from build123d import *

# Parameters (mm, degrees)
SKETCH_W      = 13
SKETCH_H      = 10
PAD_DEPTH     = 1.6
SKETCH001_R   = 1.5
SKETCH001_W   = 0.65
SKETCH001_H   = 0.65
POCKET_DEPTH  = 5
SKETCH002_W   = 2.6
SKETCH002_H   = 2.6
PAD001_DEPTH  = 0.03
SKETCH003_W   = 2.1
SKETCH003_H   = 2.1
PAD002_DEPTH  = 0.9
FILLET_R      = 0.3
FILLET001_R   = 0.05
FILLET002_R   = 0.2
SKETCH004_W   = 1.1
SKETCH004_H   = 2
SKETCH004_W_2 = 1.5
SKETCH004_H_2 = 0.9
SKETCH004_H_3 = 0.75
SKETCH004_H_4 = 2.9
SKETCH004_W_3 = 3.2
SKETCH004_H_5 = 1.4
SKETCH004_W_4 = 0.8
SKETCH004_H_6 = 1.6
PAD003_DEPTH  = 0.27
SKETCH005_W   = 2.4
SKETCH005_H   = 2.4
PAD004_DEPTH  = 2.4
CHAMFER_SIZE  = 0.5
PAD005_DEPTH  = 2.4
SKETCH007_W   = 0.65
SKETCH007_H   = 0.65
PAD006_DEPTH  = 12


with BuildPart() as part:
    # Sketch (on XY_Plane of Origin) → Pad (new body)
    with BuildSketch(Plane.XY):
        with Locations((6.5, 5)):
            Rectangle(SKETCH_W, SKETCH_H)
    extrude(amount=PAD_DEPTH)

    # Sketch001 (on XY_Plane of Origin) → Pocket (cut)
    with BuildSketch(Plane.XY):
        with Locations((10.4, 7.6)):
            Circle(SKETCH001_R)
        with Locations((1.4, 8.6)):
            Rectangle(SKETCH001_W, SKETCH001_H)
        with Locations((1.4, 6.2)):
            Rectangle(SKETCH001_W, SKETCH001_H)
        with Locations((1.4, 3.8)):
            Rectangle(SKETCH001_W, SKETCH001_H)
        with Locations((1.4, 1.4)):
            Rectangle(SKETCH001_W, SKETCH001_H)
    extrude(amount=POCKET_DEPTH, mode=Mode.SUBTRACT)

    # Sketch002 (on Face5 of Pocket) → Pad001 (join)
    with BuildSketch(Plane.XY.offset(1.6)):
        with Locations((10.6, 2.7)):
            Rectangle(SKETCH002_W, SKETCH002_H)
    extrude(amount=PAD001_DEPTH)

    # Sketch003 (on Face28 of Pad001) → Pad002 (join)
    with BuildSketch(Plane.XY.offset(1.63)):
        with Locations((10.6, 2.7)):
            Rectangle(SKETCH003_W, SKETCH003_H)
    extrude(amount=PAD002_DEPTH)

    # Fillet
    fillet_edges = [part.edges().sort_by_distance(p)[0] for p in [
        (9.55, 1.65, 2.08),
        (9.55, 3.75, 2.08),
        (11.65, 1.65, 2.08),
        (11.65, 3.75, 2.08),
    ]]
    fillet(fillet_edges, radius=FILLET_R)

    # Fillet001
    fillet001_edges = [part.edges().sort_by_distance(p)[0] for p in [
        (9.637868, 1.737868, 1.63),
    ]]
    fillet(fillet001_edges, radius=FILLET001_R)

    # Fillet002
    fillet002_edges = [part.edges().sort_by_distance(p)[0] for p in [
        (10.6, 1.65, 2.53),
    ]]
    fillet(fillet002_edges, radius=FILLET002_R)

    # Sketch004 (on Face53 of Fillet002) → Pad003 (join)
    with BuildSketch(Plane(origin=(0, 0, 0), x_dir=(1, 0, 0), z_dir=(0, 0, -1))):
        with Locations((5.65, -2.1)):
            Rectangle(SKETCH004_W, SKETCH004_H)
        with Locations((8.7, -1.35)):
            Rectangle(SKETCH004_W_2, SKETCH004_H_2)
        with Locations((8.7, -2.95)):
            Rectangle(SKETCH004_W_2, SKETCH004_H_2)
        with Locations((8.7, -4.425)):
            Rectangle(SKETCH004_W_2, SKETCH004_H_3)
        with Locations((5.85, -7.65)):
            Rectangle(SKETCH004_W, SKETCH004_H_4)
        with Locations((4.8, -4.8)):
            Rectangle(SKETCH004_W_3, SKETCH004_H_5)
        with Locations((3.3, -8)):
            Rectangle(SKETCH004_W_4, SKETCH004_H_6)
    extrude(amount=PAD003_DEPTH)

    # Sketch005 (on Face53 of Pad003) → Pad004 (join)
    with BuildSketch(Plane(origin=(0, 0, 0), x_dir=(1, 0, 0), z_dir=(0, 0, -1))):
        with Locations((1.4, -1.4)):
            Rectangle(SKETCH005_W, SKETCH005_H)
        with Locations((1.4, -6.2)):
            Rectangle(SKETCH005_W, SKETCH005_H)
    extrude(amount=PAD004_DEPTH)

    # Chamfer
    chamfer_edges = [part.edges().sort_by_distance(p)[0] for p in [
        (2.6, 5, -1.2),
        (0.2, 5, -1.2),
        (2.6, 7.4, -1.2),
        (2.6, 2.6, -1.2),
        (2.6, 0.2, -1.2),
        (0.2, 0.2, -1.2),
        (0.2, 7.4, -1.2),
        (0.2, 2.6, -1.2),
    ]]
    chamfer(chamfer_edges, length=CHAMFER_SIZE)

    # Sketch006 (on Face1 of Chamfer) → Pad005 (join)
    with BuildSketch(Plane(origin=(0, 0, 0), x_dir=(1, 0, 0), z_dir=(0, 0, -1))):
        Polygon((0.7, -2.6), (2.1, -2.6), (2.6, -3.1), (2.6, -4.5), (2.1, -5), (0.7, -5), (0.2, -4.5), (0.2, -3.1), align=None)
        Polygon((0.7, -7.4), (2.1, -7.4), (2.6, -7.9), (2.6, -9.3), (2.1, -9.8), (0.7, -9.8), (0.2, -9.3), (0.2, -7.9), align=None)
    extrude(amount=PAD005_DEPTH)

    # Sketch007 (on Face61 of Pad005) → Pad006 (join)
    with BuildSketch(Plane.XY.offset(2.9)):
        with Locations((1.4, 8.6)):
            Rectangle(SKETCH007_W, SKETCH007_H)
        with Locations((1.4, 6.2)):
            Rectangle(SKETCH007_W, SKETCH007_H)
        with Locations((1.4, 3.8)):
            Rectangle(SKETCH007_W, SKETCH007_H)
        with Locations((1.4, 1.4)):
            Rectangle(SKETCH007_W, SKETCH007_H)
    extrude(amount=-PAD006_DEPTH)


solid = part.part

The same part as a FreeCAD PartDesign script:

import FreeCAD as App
import Part
import Sketcher


def edges_at(feature, points):
    """Names of the edges that pass closest to the given points."""
    edges = feature.Shape.Edges
    near = lambda p: min(range(len(edges)), key=lambda i: edges[i].distToShape(Part.Vertex(*p))[0])
    return sorted({f"Edge{near(p) + 1}" for p in points})

doc = App.newDocument("Part")
body = doc.addObject("PartDesign::Body", "Body")

sketch1 = body.newObject("Sketcher::SketchObject", "Sketch")
sketch1.AttachmentSupport = (doc.getObject("XY_Plane"), [""])
sketch1.MapMode = "FlatFace"
sketch1.addGeometry([
    Part.LineSegment(App.Vector(0, 10, 0), App.Vector(0, 0, 0)),
    Part.LineSegment(App.Vector(0, 0, 0), App.Vector(13, 0, 0)),
    Part.LineSegment(App.Vector(13, 0, 0), App.Vector(13, 10, 0)),
    Part.LineSegment(App.Vector(13, 10, 0), App.Vector(0, 10, 0)),
], False)
sketch1.addConstraint([
    Sketcher.Constraint("Coincident", 0, 2, 1, 1),
    Sketcher.Constraint("Coincident", 1, 2, 2, 1),
    Sketcher.Constraint("Coincident", 2, 2, 3, 1),
    Sketcher.Constraint("Coincident", 3, 2, 0, 1),
    Sketcher.Constraint("Vertical", 0),
    Sketcher.Constraint("Horizontal", 1),
    Sketcher.Constraint("Vertical", 2),
    Sketcher.Constraint("Horizontal", 3),
    Sketcher.Constraint("Coincident", 0, 2, -1, 1),
    Sketcher.Constraint("DistanceX", 1, 1, 1, 2, 13.0),
    Sketcher.Constraint("DistanceY", 0, 2, 0, 1, 10.0),
])
pad1 = body.newObject("PartDesign::Pad", "Pad")
pad1.Profile = sketch1
pad1.Length = 1.6

sketch2 = body.newObject("Sketcher::SketchObject", "Sketch001")
sketch2.AttachmentSupport = (doc.getObject("XY_Plane"), [""])
sketch2.MapMode = "FlatFace"
sketch2.addGeometry([
    Part.Circle(App.Vector(10.4, 7.6, 0), App.Vector(0, 0, 1), 1.5),
    Part.LineSegment(App.Vector(1.1, 8.9, 0), App.Vector(1.1, 8.3, 0)),
    Part.LineSegment(App.Vector(1.1, 8.3, 0), App.Vector(1.7, 8.3, 0)),
    Part.LineSegment(App.Vector(1.7, 8.3, 0), App.Vector(1.7, 8.9, 0)),
    Part.LineSegment(App.Vector(1.7, 8.9, 0), App.Vector(1.1, 8.9, 0)),
    Part.LineSegment(App.Vector(1.1, 6.5, 0), App.Vector(1.1, 5.9, 0)),
    Part.LineSegment(App.Vector(1.1, 5.9, 0), App.Vector(1.7, 5.9, 0)),
    Part.LineSegment(App.Vector(1.7, 5.9, 0), App.Vector(1.7, 6.5, 0)),
    Part.LineSegment(App.Vector(1.7, 6.5, 0), App.Vector(1.1, 6.5, 0)),
    Part.LineSegment(App.Vector(1.1, 4.1, 0), App.Vector(1.1, 3.5, 0)),
    Part.LineSegment(App.Vector(1.1, 3.5, 0), App.Vector(1.7, 3.5, 0)),
    Part.LineSegment(App.Vector(1.7, 3.5, 0), App.Vector(1.7, 4.1, 0)),
    Part.LineSegment(App.Vector(1.7, 4.1, 0), App.Vector(1.1, 4.1, 0)),
    Part.LineSegment(App.Vector(1.1, 1.7, 0), App.Vector(1.1, 1.1, 0)),
    Part.LineSegment(App.Vector(1.1, 1.1, 0), App.Vector(1.7, 1.1, 0)),
    Part.LineSegment(App.Vector(1.7, 1.1, 0), App.Vector(1.7, 1.7, 0)),
    Part.LineSegment(App.Vector(1.7, 1.7, 0), App.Vector(1.1, 1.7, 0)),
], False)
sketch2.addConstraint([
    Sketcher.Constraint("Coincident", 1, 2, 2, 1),
    Sketcher.Constraint("Coincident", 2, 2, 3, 1),
    Sketcher.Constraint("Coincident", 3, 2, 4, 1),
    Sketcher.Constraint("Coincident", 4, 2, 1, 1),
    Sketcher.Constraint("Coincident", 5, 2, 6, 1),
    Sketcher.Constraint("Coincident", 6, 2, 7, 1),
    Sketcher.Constraint("Coincident", 7, 2, 8, 1),
    Sketcher.Constraint("Coincident", 8, 2, 5, 1),
    Sketcher.Constraint("Coincident", 9, 2, 10, 1),
    Sketcher.Constraint("Coincident", 10, 2, 11, 1),
    Sketcher.Constraint("Coincident", 11, 2, 12, 1),
    Sketcher.Constraint("Coincident", 12, 2, 9, 1),
    Sketcher.Constraint("Coincident", 13, 2, 14, 1),
    Sketcher.Constraint("Coincident", 14, 2, 15, 1),
    Sketcher.Constraint("Coincident", 15, 2, 16, 1),
    Sketcher.Constraint("Coincident", 16, 2, 13, 1),
    Sketcher.Constraint("Vertical", 1),
    Sketcher.Constraint("Horizontal", 2),
    Sketcher.Constraint("Vertical", 3),
    Sketcher.Constraint("Horizontal", 4),
    Sketcher.Constraint("Vertical", 5),
    Sketcher.Constraint("Horizontal", 6),
    Sketcher.Constraint("Vertical", 7),
    Sketcher.Constraint("Horizontal", 8),
    Sketcher.Constraint("Vertical", 9),
    Sketcher.Constraint("Horizontal", 10),
    Sketcher.Constraint("Vertical", 11),
    Sketcher.Constraint("Horizontal", 12),
    Sketcher.Constraint("Vertical", 13),
    Sketcher.Constraint("Horizontal", 14),
    Sketcher.Constraint("Vertical", 15),
    Sketcher.Constraint("Horizontal", 16),
    Sketcher.Constraint("Vertical", 4, 2, 5, 2),
    Sketcher.Constraint("Vertical", 3, 2, 6, 2),
    Sketcher.Constraint("Vertical", 8, 2, 9, 2),
    Sketcher.Constraint("Vertical", 7, 2, 10, 2),
    Sketcher.Constraint("Vertical", 12, 2, 13, 2),
    Sketcher.Constraint("Vertical", 11, 2, 14, 2),
    Sketcher.Constraint("Equal", 16, 1),
    Sketcher.Constraint("Equal", 3, 5),
    Sketcher.Constraint("Equal", 7, 9),
    Sketcher.Constraint("Equal", 11, 13),
    Sketcher.Constraint("Diameter", 0, 3.0),
    Sketcher.Constraint("DistanceX", 2, 1, 2, 2, 0.65),
    Sketcher.Constraint("DistanceX", -1, 1, 0, 3, 10.4),
    Sketcher.Constraint("DistanceY", -1, 1, 0, 3, 7.6),
    Sketcher.Constraint("DistanceY", 5, 2, 1, 2, 2.4),
    Sketcher.Constraint("DistanceY", 9, 2, 5, 2, 2.4),
    Sketcher.Constraint("DistanceY", 13, 2, 9, 2, 2.4),
    Sketcher.Constraint("DistanceX", -1, 1, 1, 2, 1.075),
    Sketcher.Constraint("DistanceY", -1, 1, 1, 2, 8.275),
])
pocket1 = body.newObject("PartDesign::Pocket", "Pocket")
pocket1.Profile = sketch2
pocket1.Length = 5
pocket1.Reversed = True

sketch3 = body.newObject("Sketcher::SketchObject", "Sketch002")
sketch3.AttachmentSupport = (doc.getObject("XY_Plane"), [""])
sketch3.MapMode = "FlatFace"
sketch3.AttachmentOffset = App.Placement(App.Vector(0, 0, 1.6), App.Rotation())
sketch3.addGeometry([
    Part.LineSegment(App.Vector(9.3, 4, 0), App.Vector(9.3, 1.4, 0)),
    Part.LineSegment(App.Vector(9.3, 1.4, 0), App.Vector(11.9, 1.4, 0)),
    Part.LineSegment(App.Vector(11.9, 1.4, 0), App.Vector(11.9, 4, 0)),
    Part.LineSegment(App.Vector(11.9, 4, 0), App.Vector(9.3, 4, 0)),
], False)
sketch3.addConstraint([
    Sketcher.Constraint("Coincident", 0, 2, 1, 1),
    Sketcher.Constraint("Coincident", 1, 2, 2, 1),
    Sketcher.Constraint("Coincident", 2, 2, 3, 1),
    Sketcher.Constraint("Coincident", 3, 2, 0, 1),
    Sketcher.Constraint("Vertical", 0),
    Sketcher.Constraint("Horizontal", 1),
    Sketcher.Constraint("Vertical", 2),
    Sketcher.Constraint("Horizontal", 3),
    Sketcher.Constraint("Equal", 3, 0),
    Sketcher.Constraint("DistanceX", 1, 1, 1, 2, 2.6),
    Sketcher.Constraint("DistanceY", -1, 1, 2, 2, 4.0),
    Sketcher.Constraint("DistanceX", -1, 1, 0, 2, 9.3),
])
pad2 = body.newObject("PartDesign::Pad", "Pad001")
pad2.Profile = sketch3
pad2.Length = 0.03

sketch4 = body.newObject("Sketcher::SketchObject", "Sketch003")
sketch4.AttachmentSupport = (doc.getObject("XY_Plane"), [""])
sketch4.MapMode = "FlatFace"
sketch4.AttachmentOffset = App.Placement(App.Vector(0, 0, 1.63), App.Rotation())
sketch4.addGeometry([
    Part.LineSegment(App.Vector(9.6, 3.8, 0), App.Vector(9.6, 1.6, 0)),
    Part.LineSegment(App.Vector(9.6, 1.6, 0), App.Vector(11.7, 1.6, 0)),
    Part.LineSegment(App.Vector(11.7, 1.6, 0), App.Vector(11.7, 3.8, 0)),
    Part.LineSegment(App.Vector(11.7, 3.8, 0), App.Vector(9.6, 3.8, 0)),
], False)
sketch4.addConstraint([
    Sketcher.Constraint("Coincident", 0, 2, 1, 1),
    Sketcher.Constraint("Coincident", 1, 2, 2, 1),
    Sketcher.Constraint("Coincident", 2, 2, 3, 1),
    Sketcher.Constraint("Coincident", 3, 2, 0, 1),
    Sketcher.Constraint("Vertical", 0),
    Sketcher.Constraint("Horizontal", 1),
    Sketcher.Constraint("Vertical", 2),
    Sketcher.Constraint("Horizontal", 3),
    Sketcher.Constraint("Equal", 3, 0),
    Sketcher.Constraint("DistanceX", 1, 1, 1, 2, 2.1),
    Sketcher.Constraint("DistanceX", -1, 1, 0, 2, 9.55),
    Sketcher.Constraint("DistanceY", -1, 1, 0, 2, 1.65),
])
pad3 = body.newObject("PartDesign::Pad", "Pad002")
pad3.Profile = sketch4
pad3.Length = 0.9
doc.recompute()

fillet = body.newObject("PartDesign::Fillet", "Fillet")
fillet.Base = (pad3, edges_at(pad3, [
    (9.55, 1.65, 2.08),
    (9.55, 3.75, 2.08),
    (11.65, 1.65, 2.08),
    (11.65, 3.75, 2.08),
]))
fillet.Radius = 0.3
doc.recompute()

fillet2 = body.newObject("PartDesign::Fillet", "Fillet001")
fillet2.Base = (fillet, edges_at(fillet, [(9.638, 1.738, 1.63)]))
fillet2.Radius = 0.05
doc.recompute()

fillet3 = body.newObject("PartDesign::Fillet", "Fillet002")
fillet3.Base = (fillet2, edges_at(fillet2, [(10.6, 1.65, 2.53)]))
fillet3.Radius = 0.2

sketch5 = body.newObject("Sketcher::SketchObject", "Sketch004")
sketch5.AttachmentSupport = (doc.getObject("XY_Plane"), [""])
sketch5.MapMode = "FlatFace"
sketch5.addGeometry([
    Part.LineSegment(App.Vector(5.1, 1.1, 0), App.Vector(5.1, 3.1, 0)),
    Part.LineSegment(App.Vector(5.1, 3.1, 0), App.Vector(6.2, 3.1, 0)),
    Part.LineSegment(App.Vector(6.2, 3.1, 0), App.Vector(6.2, 1.1, 0)),
    Part.LineSegment(App.Vector(6.2, 1.1, 0), App.Vector(5.1, 1.1, 0)),
    Part.LineSegment(App.Vector(8, 0.9, 0), App.Vector(8, 1.8, 0)),
    Part.LineSegment(App.Vector(8, 1.8, 0), App.Vector(9.4, 1.8, 0)),
    Part.LineSegment(App.Vector(9.4, 1.8, 0), App.Vector(9.4, 0.9, 0)),
    Part.LineSegment(App.Vector(9.4, 0.9, 0), App.Vector(8, 0.9, 0)),
    Part.LineSegment(App.Vector(8, 2.5, 0), App.Vector(8, 3.4, 0)),
    Part.LineSegment(App.Vector(8, 3.4, 0), App.Vector(9.4, 3.4, 0)),
    Part.LineSegment(App.Vector(9.4, 3.4, 0), App.Vector(9.4, 2.5, 0)),
    Part.LineSegment(App.Vector(9.4, 2.5, 0), App.Vector(8, 2.5, 0)),
    Part.LineSegment(App.Vector(8, 4, 0), App.Vector(8, 4.8, 0)),
    Part.LineSegment(App.Vector(8, 4.8, 0), App.Vector(9.4, 4.8, 0)),
    Part.LineSegment(App.Vector(9.4, 4.8, 0), App.Vector(9.4, 4, 0)),
    Part.LineSegment(App.Vector(9.4, 4, 0), App.Vector(8, 4, 0)),
    Part.LineSegment(App.Vector(5.3, 6.2, 0), App.Vector(5.3, 9.1, 0)),
    Part.LineSegment(App.Vector(5.3, 9.1, 0), App.Vector(6.4, 9.1, 0)),
    Part.LineSegment(App.Vector(6.4, 9.1, 0), App.Vector(6.4, 6.2, 0)),
    Part.LineSegment(App.Vector(6.4, 6.2, 0), App.Vector(5.3, 6.2, 0)),
    Part.LineSegment(App.Vector(3.2, 4.1, 0), App.Vector(3.2, 5.5, 0)),
    Part.LineSegment(App.Vector(3.2, 5.5, 0), App.Vector(6.4, 5.5, 0)),
    Part.LineSegment(App.Vector(6.4, 5.5, 0), App.Vector(6.4, 4.1, 0)),
    Part.LineSegment(App.Vector(6.4, 4.1, 0), App.Vector(3.2, 4.1, 0)),
    Part.LineSegment(App.Vector(2.9, 7.2, 0), App.Vector(2.9, 8.8, 0)),
    Part.LineSegment(App.Vector(2.9, 8.8, 0), App.Vector(3.7, 8.8, 0)),
    Part.LineSegment(App.Vector(3.7, 8.8, 0), App.Vector(3.7, 7.2, 0)),
    Part.LineSegment(App.Vector(3.7, 7.2, 0), App.Vector(2.9, 7.2, 0)),
], False)
sketch5.addConstraint([
    Sketcher.Constraint("Coincident", 0, 2, 1, 1),
    Sketcher.Constraint("Coincident", 1, 2, 2, 1),
    Sketcher.Constraint("Coincident", 2, 2, 3, 1),
    Sketcher.Constraint("Coincident", 3, 2, 0, 1),
    Sketcher.Constraint("Coincident", 4, 2, 5, 1),
    Sketcher.Constraint("Coincident", 5, 2, 6, 1),
    Sketcher.Constraint("Coincident", 6, 2, 7, 1),
    Sketcher.Constraint("Coincident", 7, 2, 4, 1),
    Sketcher.Constraint("Coincident", 8, 2, 9, 1),
    Sketcher.Constraint("Coincident", 9, 2, 10, 1),
    Sketcher.Constraint("Coincident", 10, 2, 11, 1),
    Sketcher.Constraint("Coincident", 11, 2, 8, 1),
    Sketcher.Constraint("Coincident", 12, 2, 13, 1),
    Sketcher.Constraint("Coincident", 13, 2, 14, 1),
    Sketcher.Constraint("Coincident", 14, 2, 15, 1),
    Sketcher.Constraint("Coincident", 15, 2, 12, 1),
    Sketcher.Constraint("Coincident", 16, 2, 17, 1),
    Sketcher.Constraint("Coincident", 17, 2, 18, 1),
    Sketcher.Constraint("Coincident", 18, 2, 19, 1),
    Sketcher.Constraint("Coincident", 19, 2, 16, 1),
    Sketcher.Constraint("Coincident", 20, 2, 21, 1),
    Sketcher.Constraint("Coincident", 21, 2, 22, 1),
    Sketcher.Constraint("Coincident", 22, 2, 23, 1),
    Sketcher.Constraint("Coincident", 23, 2, 20, 1),
    Sketcher.Constraint("Coincident", 24, 2, 25, 1),
    Sketcher.Constraint("Coincident", 25, 2, 26, 1),
    Sketcher.Constraint("Coincident", 26, 2, 27, 1),
    Sketcher.Constraint("Coincident", 27, 2, 24, 1),
    Sketcher.Constraint("Vertical", 0),
    Sketcher.Constraint("Horizontal", 1),
    Sketcher.Constraint("Vertical", 2),
    Sketcher.Constraint("Horizontal", 3),
    Sketcher.Constraint("Vertical", 4),
    Sketcher.Constraint("Horizontal", 5),
    Sketcher.Constraint("Vertical", 6),
    Sketcher.Constraint("Horizontal", 7),
    Sketcher.Constraint("Vertical", 8),
    Sketcher.Constraint("Horizontal", 9),
    Sketcher.Constraint("Vertical", 10),
    Sketcher.Constraint("Horizontal", 11),
    Sketcher.Constraint("Vertical", 12),
    Sketcher.Constraint("Horizontal", 13),
    Sketcher.Constraint("Vertical", 14),
    Sketcher.Constraint("Horizontal", 15),
    Sketcher.Constraint("Vertical", 16),
    Sketcher.Constraint("Horizontal", 17),
    Sketcher.Constraint("Vertical", 18),
    Sketcher.Constraint("Horizontal", 19),
    Sketcher.Constraint("Vertical", 20),
    Sketcher.Constraint("Horizontal", 21),
    Sketcher.Constraint("Vertical", 22),
    Sketcher.Constraint("Horizontal", 23),
    Sketcher.Constraint("Vertical", 24),
    Sketcher.Constraint("Horizontal", 25),
    Sketcher.Constraint("Vertical", 26),
    Sketcher.Constraint("Horizontal", 27),
    Sketcher.Constraint("Vertical", 7, 2, 8, 2),
    Sketcher.Constraint("Vertical", 6, 2, 9, 2),
    Sketcher.Constraint("Vertical", 11, 2, 12, 2),
    Sketcher.Constraint("Vertical", 10, 2, 13, 2),
    Sketcher.Constraint("Vertical", 18, 2, 21, 2),
    Sketcher.Constraint("Equal", 3, 17),
    Sketcher.Constraint("Equal", 6, 8),
    Sketcher.Constraint("DistanceY", 0, 1, 0, 2, 2.0),
    Sketcher.Constraint("DistanceX", 1, 1, 1, 2, 1.1),
    Sketcher.Constraint("DistanceX", 5, 1, 5, 2, 1.5),
    Sketcher.Constraint("DistanceX", 21, 1, 21, 2, 3.2),
    Sketcher.Constraint("DistanceX", 25, 1, 25, 2, 0.8),
    Sketcher.Constraint("DistanceY", 4, 1, 4, 2, 0.9),
    Sketcher.Constraint("DistanceY", 16, 1, 16, 2, 2.9),
    Sketcher.Constraint("DistanceY", 20, 1, 20, 2, 1.4),
    Sketcher.Constraint("DistanceY", 24, 1, 24, 2, 1.6),
    Sketcher.Constraint("DistanceY", 0, 2, 16, 2, 6.0),
    Sketcher.Constraint("DistanceX", 20, 2, 1, 2, 3.0),
    Sketcher.Constraint("DistanceY", 1, 2, 22, 2, 1.0),
    Sketcher.Constraint("DistanceY", 19, 2, 26, 2, 1.0),
    Sketcher.Constraint("DistanceY", 12, 1, 12, 2, 0.75),
    Sketcher.Constraint("DistanceX", -1, 1, 0, 2, 5.1),
    Sketcher.Constraint("DistanceY", -1, 1, 0, 2, 3.1),
    Sketcher.Constraint("DistanceY", -1, 1, 4, 2, 1.8),
    Sketcher.Constraint("DistanceY", -1, 1, 8, 2, 3.4),
    Sketcher.Constraint("DistanceY", -1, 1, 12, 2, 4.8),
    Sketcher.Constraint("DistanceX", -1, 1, 24, 2, 2.9),
    Sketcher.Constraint("DistanceX", -1, 1, 4, 2, 7.95),
])
pad4 = body.newObject("PartDesign::Pad", "Pad003")
pad4.Profile = sketch5
pad4.Length = 0.27
pad4.Reversed = True

sketch6 = body.newObject("Sketcher::SketchObject", "Sketch005")
sketch6.AttachmentSupport = (doc.getObject("XY_Plane"), [""])
sketch6.MapMode = "FlatFace"
sketch6.addGeometry([
    Part.LineSegment(App.Vector(0.2, 0.2, 0), App.Vector(0.2, 2.6, 0)),
    Part.LineSegment(App.Vector(0.2, 2.6, 0), App.Vector(2.6, 2.6, 0)),
    Part.LineSegment(App.Vector(2.6, 2.6, 0), App.Vector(2.6, 0.2, 0)),
    Part.LineSegment(App.Vector(2.6, 0.2, 0), App.Vector(0.2, 0.2, 0)),
    Part.LineSegment(App.Vector(0.2, 5, 0), App.Vector(0.2, 7.4, 0)),
    Part.LineSegment(App.Vector(0.2, 7.4, 0), App.Vector(2.6, 7.4, 0)),
    Part.LineSegment(App.Vector(2.6, 7.4, 0), App.Vector(2.6, 5, 0)),
    Part.LineSegment(App.Vector(2.6, 5, 0), App.Vector(0.2, 5, 0)),
], False)
sketch6.addConstraint([
    Sketcher.Constraint("Coincident", 0, 2, 1, 1),
    Sketcher.Constraint("Coincident", 1, 2, 2, 1),
    Sketcher.Constraint("Coincident", 2, 2, 3, 1),
    Sketcher.Constraint("Coincident", 3, 2, 0, 1),
    Sketcher.Constraint("Coincident", 4, 2, 5, 1),
    Sketcher.Constraint("Coincident", 5, 2, 6, 1),
    Sketcher.Constraint("Coincident", 6, 2, 7, 1),
    Sketcher.Constraint("Coincident", 7, 2, 4, 1),
    Sketcher.Constraint("Vertical", 0),
    Sketcher.Constraint("Horizontal", 1),
    Sketcher.Constraint("Vertical", 2),
    Sketcher.Constraint("Horizontal", 3),
    Sketcher.Constraint("Vertical", 4),
    Sketcher.Constraint("Horizontal", 5),
    Sketcher.Constraint("Vertical", 6),
    Sketcher.Constraint("Horizontal", 7),
    Sketcher.Constraint("Vertical", 3, 2, 4, 2),
    Sketcher.Constraint("Vertical", 2, 2, 5, 2),
    Sketcher.Constraint("Equal", 7, 0),
    Sketcher.Constraint("Equal", 2, 4),
    Sketcher.Constraint("DistanceX", 1, 1, 1, 2, 2.4),
    Sketcher.Constraint("DistanceY", -1, 1, 6, 2, 5.0),
    Sketcher.Constraint("DistanceX", -1, 1, 0, 2, 0.2),
    Sketcher.Constraint("DistanceY", -1, 1, 0, 2, 2.6),
])
pad5 = body.newObject("PartDesign::Pad", "Pad004")
pad5.Profile = sketch6
pad5.Length = 2.4
pad5.Reversed = True
doc.recompute()

chamfer = body.newObject("PartDesign::Chamfer", "Chamfer")
chamfer.Base = (pad5, edges_at(pad5, [
    (2.6, 5, -1.2),
    (0.2, 5, -1.2),
    (2.6, 7.4, -1.2),
    (2.6, 2.6, -1.2),
    (2.6, 0.2, -1.2),
    (0.2, 0.2, -1.2),
    (0.2, 7.4, -1.2),
    (0.2, 2.6, -1.2),
]))
chamfer.Size = 0.5

sketch7 = body.newObject("Sketcher::SketchObject", "Sketch006")
sketch7.AttachmentSupport = (doc.getObject("XY_Plane"), [""])
sketch7.MapMode = "FlatFace"
sketch7.addGeometry([
    Part.LineSegment(App.Vector(2.1, 2.6, 0), App.Vector(0.7, 2.6, 0)),
    Part.LineSegment(App.Vector(0.7, 2.6, 0), App.Vector(0.2, 3.1, 0)),
    Part.LineSegment(App.Vector(0.2, 3.1, 0), App.Vector(0.2, 4.5, 0)),
    Part.LineSegment(App.Vector(0.2, 4.5, 0), App.Vector(0.7, 5, 0)),
    Part.LineSegment(App.Vector(0.7, 5, 0), App.Vector(2.1, 5, 0)),
    Part.LineSegment(App.Vector(2.1, 5, 0), App.Vector(2.6, 4.5, 0)),
    Part.LineSegment(App.Vector(2.6, 4.5, 0), App.Vector(2.6, 3.1, 0)),
    Part.LineSegment(App.Vector(2.6, 3.1, 0), App.Vector(2.1, 2.6, 0)),
    Part.LineSegment(App.Vector(2.1, 7.4, 0), App.Vector(0.7, 7.4, 0)),
    Part.LineSegment(App.Vector(0.7, 7.4, 0), App.Vector(0.2, 7.9, 0)),
    Part.LineSegment(App.Vector(0.2, 7.9, 0), App.Vector(0.2, 9.3, 0)),
    Part.LineSegment(App.Vector(0.2, 9.3, 0), App.Vector(0.7, 9.8, 0)),
    Part.LineSegment(App.Vector(0.7, 9.8, 0), App.Vector(2.1, 9.8, 0)),
    Part.LineSegment(App.Vector(2.1, 9.8, 0), App.Vector(2.6, 9.3, 0)),
    Part.LineSegment(App.Vector(2.6, 9.3, 0), App.Vector(2.6, 7.9, 0)),
    Part.LineSegment(App.Vector(2.6, 7.9, 0), App.Vector(2.1, 7.4, 0)),
], False)
sketch7.addConstraint([
    Sketcher.Constraint("Coincident", 0, 2, 1, 1),
    Sketcher.Constraint("Coincident", 1, 2, 2, 1),
    Sketcher.Constraint("Coincident", 2, 2, 3, 1),
    Sketcher.Constraint("Coincident", 3, 2, 4, 1),
    Sketcher.Constraint("Coincident", 4, 2, 5, 1),
    Sketcher.Constraint("Coincident", 5, 2, 6, 1),
    Sketcher.Constraint("Coincident", 6, 2, 7, 1),
    Sketcher.Constraint("Coincident", 7, 2, 0, 1),
    Sketcher.Constraint("Coincident", 8, 2, 9, 1),
    Sketcher.Constraint("Coincident", 9, 2, 10, 1),
    Sketcher.Constraint("Coincident", 10, 2, 11, 1),
    Sketcher.Constraint("Coincident", 11, 2, 12, 1),
    Sketcher.Constraint("Coincident", 12, 2, 13, 1),
    Sketcher.Constraint("Coincident", 13, 2, 14, 1),
    Sketcher.Constraint("Coincident", 14, 2, 15, 1),
    Sketcher.Constraint("Coincident", 15, 2, 8, 1),
    Sketcher.Constraint("Horizontal", 0),
    Sketcher.Constraint("Vertical", 2),
    Sketcher.Constraint("Horizontal", 4),
    Sketcher.Constraint("Vertical", 6),
    Sketcher.Constraint("Horizontal", 8),
    Sketcher.Constraint("Vertical", 10),
    Sketcher.Constraint("Horizontal", 12),
    Sketcher.Constraint("Vertical", 14),
    Sketcher.Constraint("Perpendicular", 1, 3),
    Sketcher.Constraint("Perpendicular", 3, 5),
    Sketcher.Constraint("Perpendicular", 5, 7),
    Sketcher.Constraint("Perpendicular", 7, 9),
    Sketcher.Constraint("Perpendicular", 9, 11),
    Sketcher.Constraint("Perpendicular", 11, 13),
    Sketcher.Constraint("Perpendicular", 13, 15),
    Sketcher.Constraint("Horizontal", 2, 2, 5, 2),
    Sketcher.Constraint("Horizontal", 1, 2, 6, 2),
    Sketcher.Constraint("Horizontal", 10, 2, 13, 2),
    Sketcher.Constraint("Horizontal", 9, 2, 14, 2),
    Sketcher.Constraint("Vertical", 0, 2, 3, 2),
    Sketcher.Constraint("Vertical", 4, 2, 7, 2),
    Sketcher.Constraint("Vertical", 3, 2, 8, 2),
    Sketcher.Constraint("Vertical", 2, 2, 9, 2),
    Sketcher.Constraint("Vertical", 8, 2, 11, 2),
    Sketcher.Constraint("Vertical", 7, 2, 12, 2),
    Sketcher.Constraint("Equal", 12, 2),
    Sketcher.Constraint("Equal", 6, 10),
    Sketcher.Constraint("DistanceX", 0, 2, 0, 1, 1.4),
    Sketcher.Constraint("DistanceY", -1, 1, 3, 2, 5.0),
    Sketcher.Constraint("DistanceX", -1, 1, 0, 2, 0.7),
    Sketcher.Constraint("DistanceY", -1, 1, 0, 2, 2.6),
    Sketcher.Constraint("DistanceY", -1, 1, 8, 2, 7.4),
])
pad6 = body.newObject("PartDesign::Pad", "Pad005")
pad6.Profile = sketch7
pad6.Length = 2.4
pad6.Reversed = True

sketch8 = body.newObject("Sketcher::SketchObject", "Sketch007")
sketch8.AttachmentSupport = (doc.getObject("XY_Plane"), [""])
sketch8.MapMode = "FlatFace"
sketch8.AttachmentOffset = App.Placement(App.Vector(0, 0, 2.9), App.Rotation())
sketch8.addGeometry([
    Part.LineSegment(App.Vector(1.1, 8.9, 0), App.Vector(1.1, 8.3, 0)),
    Part.LineSegment(App.Vector(1.1, 8.3, 0), App.Vector(1.7, 8.3, 0)),
    Part.LineSegment(App.Vector(1.7, 8.3, 0), App.Vector(1.7, 8.9, 0)),
    Part.LineSegment(App.Vector(1.7, 8.9, 0), App.Vector(1.1, 8.9, 0)),
    Part.LineSegment(App.Vector(1.1, 6.5, 0), App.Vector(1.1, 5.9, 0)),
    Part.LineSegment(App.Vector(1.1, 5.9, 0), App.Vector(1.7, 5.9, 0)),
    Part.LineSegment(App.Vector(1.7, 5.9, 0), App.Vector(1.7, 6.5, 0)),
    Part.LineSegment(App.Vector(1.7, 6.5, 0), App.Vector(1.1, 6.5, 0)),
    Part.LineSegment(App.Vector(1.1, 4.1, 0), App.Vector(1.1, 3.5, 0)),
    Part.LineSegment(App.Vector(1.1, 3.5, 0), App.Vector(1.7, 3.5, 0)),
    Part.LineSegment(App.Vector(1.7, 3.5, 0), App.Vector(1.7, 4.1, 0)),
    Part.LineSegment(App.Vector(1.7, 4.1, 0), App.Vector(1.1, 4.1, 0)),
    Part.LineSegment(App.Vector(1.1, 1.7, 0), App.Vector(1.1, 1.1, 0)),
    Part.LineSegment(App.Vector(1.1, 1.1, 0), App.Vector(1.7, 1.1, 0)),
    Part.LineSegment(App.Vector(1.7, 1.1, 0), App.Vector(1.7, 1.7, 0)),
    Part.LineSegment(App.Vector(1.7, 1.7, 0), App.Vector(1.1, 1.7, 0)),
], False)
sketch8.addConstraint([
    Sketcher.Constraint("Coincident", 0, 2, 1, 1),
    Sketcher.Constraint("Coincident", 1, 2, 2, 1),
    Sketcher.Constraint("Coincident", 2, 2, 3, 1),
    Sketcher.Constraint("Coincident", 3, 2, 0, 1),
    Sketcher.Constraint("Coincident", 4, 2, 5, 1),
    Sketcher.Constraint("Coincident", 5, 2, 6, 1),
    Sketcher.Constraint("Coincident", 6, 2, 7, 1),
    Sketcher.Constraint("Coincident", 7, 2, 4, 1),
    Sketcher.Constraint("Coincident", 8, 2, 9, 1),
    Sketcher.Constraint("Coincident", 9, 2, 10, 1),
    Sketcher.Constraint("Coincident", 10, 2, 11, 1),
    Sketcher.Constraint("Coincident", 11, 2, 8, 1),
    Sketcher.Constraint("Coincident", 12, 2, 13, 1),
    Sketcher.Constraint("Coincident", 13, 2, 14, 1),
    Sketcher.Constraint("Coincident", 14, 2, 15, 1),
    Sketcher.Constraint("Coincident", 15, 2, 12, 1),
    Sketcher.Constraint("Vertical", 0),
    Sketcher.Constraint("Horizontal", 1),
    Sketcher.Constraint("Vertical", 2),
    Sketcher.Constraint("Horizontal", 3),
    Sketcher.Constraint("Vertical", 4),
    Sketcher.Constraint("Horizontal", 5),
    Sketcher.Constraint("Vertical", 6),
    Sketcher.Constraint("Horizontal", 7),
    Sketcher.Constraint("Vertical", 8),
    Sketcher.Constraint("Horizontal", 9),
    Sketcher.Constraint("Vertical", 10),
    Sketcher.Constraint("Horizontal", 11),
    Sketcher.Constraint("Vertical", 12),
    Sketcher.Constraint("Horizontal", 13),
    Sketcher.Constraint("Vertical", 14),
    Sketcher.Constraint("Horizontal", 15),
    Sketcher.Constraint("Vertical", 3, 2, 4, 2),
    Sketcher.Constraint("Vertical", 2, 2, 5, 2),
    Sketcher.Constraint("Vertical", 7, 2, 8, 2),
    Sketcher.Constraint("Vertical", 6, 2, 9, 2),
    Sketcher.Constraint("Vertical", 11, 2, 12, 2),
    Sketcher.Constraint("Vertical", 10, 2, 13, 2),
    Sketcher.Constraint("Equal", 15, 0),
    Sketcher.Constraint("Equal", 2, 4),
    Sketcher.Constraint("Equal", 6, 8),
    Sketcher.Constraint("Equal", 10, 12),
    Sketcher.Constraint("DistanceX", 1, 1, 1, 2, 0.65),
    Sketcher.Constraint("DistanceY", 4, 2, 0, 2, 2.4),
    Sketcher.Constraint("DistanceY", 8, 2, 4, 2, 2.4),
    Sketcher.Constraint("DistanceY", 12, 2, 8, 2, 2.4),
    Sketcher.Constraint("DistanceX", -1, 1, 0, 2, 1.075),
    Sketcher.Constraint("DistanceY", -1, 1, 0, 2, 8.275),
])
pad7 = body.newObject("PartDesign::Pad", "Pad006")
pad7.Profile = sketch8
pad7.Length = 12
pad7.Reversed = True

doc.recompute()
